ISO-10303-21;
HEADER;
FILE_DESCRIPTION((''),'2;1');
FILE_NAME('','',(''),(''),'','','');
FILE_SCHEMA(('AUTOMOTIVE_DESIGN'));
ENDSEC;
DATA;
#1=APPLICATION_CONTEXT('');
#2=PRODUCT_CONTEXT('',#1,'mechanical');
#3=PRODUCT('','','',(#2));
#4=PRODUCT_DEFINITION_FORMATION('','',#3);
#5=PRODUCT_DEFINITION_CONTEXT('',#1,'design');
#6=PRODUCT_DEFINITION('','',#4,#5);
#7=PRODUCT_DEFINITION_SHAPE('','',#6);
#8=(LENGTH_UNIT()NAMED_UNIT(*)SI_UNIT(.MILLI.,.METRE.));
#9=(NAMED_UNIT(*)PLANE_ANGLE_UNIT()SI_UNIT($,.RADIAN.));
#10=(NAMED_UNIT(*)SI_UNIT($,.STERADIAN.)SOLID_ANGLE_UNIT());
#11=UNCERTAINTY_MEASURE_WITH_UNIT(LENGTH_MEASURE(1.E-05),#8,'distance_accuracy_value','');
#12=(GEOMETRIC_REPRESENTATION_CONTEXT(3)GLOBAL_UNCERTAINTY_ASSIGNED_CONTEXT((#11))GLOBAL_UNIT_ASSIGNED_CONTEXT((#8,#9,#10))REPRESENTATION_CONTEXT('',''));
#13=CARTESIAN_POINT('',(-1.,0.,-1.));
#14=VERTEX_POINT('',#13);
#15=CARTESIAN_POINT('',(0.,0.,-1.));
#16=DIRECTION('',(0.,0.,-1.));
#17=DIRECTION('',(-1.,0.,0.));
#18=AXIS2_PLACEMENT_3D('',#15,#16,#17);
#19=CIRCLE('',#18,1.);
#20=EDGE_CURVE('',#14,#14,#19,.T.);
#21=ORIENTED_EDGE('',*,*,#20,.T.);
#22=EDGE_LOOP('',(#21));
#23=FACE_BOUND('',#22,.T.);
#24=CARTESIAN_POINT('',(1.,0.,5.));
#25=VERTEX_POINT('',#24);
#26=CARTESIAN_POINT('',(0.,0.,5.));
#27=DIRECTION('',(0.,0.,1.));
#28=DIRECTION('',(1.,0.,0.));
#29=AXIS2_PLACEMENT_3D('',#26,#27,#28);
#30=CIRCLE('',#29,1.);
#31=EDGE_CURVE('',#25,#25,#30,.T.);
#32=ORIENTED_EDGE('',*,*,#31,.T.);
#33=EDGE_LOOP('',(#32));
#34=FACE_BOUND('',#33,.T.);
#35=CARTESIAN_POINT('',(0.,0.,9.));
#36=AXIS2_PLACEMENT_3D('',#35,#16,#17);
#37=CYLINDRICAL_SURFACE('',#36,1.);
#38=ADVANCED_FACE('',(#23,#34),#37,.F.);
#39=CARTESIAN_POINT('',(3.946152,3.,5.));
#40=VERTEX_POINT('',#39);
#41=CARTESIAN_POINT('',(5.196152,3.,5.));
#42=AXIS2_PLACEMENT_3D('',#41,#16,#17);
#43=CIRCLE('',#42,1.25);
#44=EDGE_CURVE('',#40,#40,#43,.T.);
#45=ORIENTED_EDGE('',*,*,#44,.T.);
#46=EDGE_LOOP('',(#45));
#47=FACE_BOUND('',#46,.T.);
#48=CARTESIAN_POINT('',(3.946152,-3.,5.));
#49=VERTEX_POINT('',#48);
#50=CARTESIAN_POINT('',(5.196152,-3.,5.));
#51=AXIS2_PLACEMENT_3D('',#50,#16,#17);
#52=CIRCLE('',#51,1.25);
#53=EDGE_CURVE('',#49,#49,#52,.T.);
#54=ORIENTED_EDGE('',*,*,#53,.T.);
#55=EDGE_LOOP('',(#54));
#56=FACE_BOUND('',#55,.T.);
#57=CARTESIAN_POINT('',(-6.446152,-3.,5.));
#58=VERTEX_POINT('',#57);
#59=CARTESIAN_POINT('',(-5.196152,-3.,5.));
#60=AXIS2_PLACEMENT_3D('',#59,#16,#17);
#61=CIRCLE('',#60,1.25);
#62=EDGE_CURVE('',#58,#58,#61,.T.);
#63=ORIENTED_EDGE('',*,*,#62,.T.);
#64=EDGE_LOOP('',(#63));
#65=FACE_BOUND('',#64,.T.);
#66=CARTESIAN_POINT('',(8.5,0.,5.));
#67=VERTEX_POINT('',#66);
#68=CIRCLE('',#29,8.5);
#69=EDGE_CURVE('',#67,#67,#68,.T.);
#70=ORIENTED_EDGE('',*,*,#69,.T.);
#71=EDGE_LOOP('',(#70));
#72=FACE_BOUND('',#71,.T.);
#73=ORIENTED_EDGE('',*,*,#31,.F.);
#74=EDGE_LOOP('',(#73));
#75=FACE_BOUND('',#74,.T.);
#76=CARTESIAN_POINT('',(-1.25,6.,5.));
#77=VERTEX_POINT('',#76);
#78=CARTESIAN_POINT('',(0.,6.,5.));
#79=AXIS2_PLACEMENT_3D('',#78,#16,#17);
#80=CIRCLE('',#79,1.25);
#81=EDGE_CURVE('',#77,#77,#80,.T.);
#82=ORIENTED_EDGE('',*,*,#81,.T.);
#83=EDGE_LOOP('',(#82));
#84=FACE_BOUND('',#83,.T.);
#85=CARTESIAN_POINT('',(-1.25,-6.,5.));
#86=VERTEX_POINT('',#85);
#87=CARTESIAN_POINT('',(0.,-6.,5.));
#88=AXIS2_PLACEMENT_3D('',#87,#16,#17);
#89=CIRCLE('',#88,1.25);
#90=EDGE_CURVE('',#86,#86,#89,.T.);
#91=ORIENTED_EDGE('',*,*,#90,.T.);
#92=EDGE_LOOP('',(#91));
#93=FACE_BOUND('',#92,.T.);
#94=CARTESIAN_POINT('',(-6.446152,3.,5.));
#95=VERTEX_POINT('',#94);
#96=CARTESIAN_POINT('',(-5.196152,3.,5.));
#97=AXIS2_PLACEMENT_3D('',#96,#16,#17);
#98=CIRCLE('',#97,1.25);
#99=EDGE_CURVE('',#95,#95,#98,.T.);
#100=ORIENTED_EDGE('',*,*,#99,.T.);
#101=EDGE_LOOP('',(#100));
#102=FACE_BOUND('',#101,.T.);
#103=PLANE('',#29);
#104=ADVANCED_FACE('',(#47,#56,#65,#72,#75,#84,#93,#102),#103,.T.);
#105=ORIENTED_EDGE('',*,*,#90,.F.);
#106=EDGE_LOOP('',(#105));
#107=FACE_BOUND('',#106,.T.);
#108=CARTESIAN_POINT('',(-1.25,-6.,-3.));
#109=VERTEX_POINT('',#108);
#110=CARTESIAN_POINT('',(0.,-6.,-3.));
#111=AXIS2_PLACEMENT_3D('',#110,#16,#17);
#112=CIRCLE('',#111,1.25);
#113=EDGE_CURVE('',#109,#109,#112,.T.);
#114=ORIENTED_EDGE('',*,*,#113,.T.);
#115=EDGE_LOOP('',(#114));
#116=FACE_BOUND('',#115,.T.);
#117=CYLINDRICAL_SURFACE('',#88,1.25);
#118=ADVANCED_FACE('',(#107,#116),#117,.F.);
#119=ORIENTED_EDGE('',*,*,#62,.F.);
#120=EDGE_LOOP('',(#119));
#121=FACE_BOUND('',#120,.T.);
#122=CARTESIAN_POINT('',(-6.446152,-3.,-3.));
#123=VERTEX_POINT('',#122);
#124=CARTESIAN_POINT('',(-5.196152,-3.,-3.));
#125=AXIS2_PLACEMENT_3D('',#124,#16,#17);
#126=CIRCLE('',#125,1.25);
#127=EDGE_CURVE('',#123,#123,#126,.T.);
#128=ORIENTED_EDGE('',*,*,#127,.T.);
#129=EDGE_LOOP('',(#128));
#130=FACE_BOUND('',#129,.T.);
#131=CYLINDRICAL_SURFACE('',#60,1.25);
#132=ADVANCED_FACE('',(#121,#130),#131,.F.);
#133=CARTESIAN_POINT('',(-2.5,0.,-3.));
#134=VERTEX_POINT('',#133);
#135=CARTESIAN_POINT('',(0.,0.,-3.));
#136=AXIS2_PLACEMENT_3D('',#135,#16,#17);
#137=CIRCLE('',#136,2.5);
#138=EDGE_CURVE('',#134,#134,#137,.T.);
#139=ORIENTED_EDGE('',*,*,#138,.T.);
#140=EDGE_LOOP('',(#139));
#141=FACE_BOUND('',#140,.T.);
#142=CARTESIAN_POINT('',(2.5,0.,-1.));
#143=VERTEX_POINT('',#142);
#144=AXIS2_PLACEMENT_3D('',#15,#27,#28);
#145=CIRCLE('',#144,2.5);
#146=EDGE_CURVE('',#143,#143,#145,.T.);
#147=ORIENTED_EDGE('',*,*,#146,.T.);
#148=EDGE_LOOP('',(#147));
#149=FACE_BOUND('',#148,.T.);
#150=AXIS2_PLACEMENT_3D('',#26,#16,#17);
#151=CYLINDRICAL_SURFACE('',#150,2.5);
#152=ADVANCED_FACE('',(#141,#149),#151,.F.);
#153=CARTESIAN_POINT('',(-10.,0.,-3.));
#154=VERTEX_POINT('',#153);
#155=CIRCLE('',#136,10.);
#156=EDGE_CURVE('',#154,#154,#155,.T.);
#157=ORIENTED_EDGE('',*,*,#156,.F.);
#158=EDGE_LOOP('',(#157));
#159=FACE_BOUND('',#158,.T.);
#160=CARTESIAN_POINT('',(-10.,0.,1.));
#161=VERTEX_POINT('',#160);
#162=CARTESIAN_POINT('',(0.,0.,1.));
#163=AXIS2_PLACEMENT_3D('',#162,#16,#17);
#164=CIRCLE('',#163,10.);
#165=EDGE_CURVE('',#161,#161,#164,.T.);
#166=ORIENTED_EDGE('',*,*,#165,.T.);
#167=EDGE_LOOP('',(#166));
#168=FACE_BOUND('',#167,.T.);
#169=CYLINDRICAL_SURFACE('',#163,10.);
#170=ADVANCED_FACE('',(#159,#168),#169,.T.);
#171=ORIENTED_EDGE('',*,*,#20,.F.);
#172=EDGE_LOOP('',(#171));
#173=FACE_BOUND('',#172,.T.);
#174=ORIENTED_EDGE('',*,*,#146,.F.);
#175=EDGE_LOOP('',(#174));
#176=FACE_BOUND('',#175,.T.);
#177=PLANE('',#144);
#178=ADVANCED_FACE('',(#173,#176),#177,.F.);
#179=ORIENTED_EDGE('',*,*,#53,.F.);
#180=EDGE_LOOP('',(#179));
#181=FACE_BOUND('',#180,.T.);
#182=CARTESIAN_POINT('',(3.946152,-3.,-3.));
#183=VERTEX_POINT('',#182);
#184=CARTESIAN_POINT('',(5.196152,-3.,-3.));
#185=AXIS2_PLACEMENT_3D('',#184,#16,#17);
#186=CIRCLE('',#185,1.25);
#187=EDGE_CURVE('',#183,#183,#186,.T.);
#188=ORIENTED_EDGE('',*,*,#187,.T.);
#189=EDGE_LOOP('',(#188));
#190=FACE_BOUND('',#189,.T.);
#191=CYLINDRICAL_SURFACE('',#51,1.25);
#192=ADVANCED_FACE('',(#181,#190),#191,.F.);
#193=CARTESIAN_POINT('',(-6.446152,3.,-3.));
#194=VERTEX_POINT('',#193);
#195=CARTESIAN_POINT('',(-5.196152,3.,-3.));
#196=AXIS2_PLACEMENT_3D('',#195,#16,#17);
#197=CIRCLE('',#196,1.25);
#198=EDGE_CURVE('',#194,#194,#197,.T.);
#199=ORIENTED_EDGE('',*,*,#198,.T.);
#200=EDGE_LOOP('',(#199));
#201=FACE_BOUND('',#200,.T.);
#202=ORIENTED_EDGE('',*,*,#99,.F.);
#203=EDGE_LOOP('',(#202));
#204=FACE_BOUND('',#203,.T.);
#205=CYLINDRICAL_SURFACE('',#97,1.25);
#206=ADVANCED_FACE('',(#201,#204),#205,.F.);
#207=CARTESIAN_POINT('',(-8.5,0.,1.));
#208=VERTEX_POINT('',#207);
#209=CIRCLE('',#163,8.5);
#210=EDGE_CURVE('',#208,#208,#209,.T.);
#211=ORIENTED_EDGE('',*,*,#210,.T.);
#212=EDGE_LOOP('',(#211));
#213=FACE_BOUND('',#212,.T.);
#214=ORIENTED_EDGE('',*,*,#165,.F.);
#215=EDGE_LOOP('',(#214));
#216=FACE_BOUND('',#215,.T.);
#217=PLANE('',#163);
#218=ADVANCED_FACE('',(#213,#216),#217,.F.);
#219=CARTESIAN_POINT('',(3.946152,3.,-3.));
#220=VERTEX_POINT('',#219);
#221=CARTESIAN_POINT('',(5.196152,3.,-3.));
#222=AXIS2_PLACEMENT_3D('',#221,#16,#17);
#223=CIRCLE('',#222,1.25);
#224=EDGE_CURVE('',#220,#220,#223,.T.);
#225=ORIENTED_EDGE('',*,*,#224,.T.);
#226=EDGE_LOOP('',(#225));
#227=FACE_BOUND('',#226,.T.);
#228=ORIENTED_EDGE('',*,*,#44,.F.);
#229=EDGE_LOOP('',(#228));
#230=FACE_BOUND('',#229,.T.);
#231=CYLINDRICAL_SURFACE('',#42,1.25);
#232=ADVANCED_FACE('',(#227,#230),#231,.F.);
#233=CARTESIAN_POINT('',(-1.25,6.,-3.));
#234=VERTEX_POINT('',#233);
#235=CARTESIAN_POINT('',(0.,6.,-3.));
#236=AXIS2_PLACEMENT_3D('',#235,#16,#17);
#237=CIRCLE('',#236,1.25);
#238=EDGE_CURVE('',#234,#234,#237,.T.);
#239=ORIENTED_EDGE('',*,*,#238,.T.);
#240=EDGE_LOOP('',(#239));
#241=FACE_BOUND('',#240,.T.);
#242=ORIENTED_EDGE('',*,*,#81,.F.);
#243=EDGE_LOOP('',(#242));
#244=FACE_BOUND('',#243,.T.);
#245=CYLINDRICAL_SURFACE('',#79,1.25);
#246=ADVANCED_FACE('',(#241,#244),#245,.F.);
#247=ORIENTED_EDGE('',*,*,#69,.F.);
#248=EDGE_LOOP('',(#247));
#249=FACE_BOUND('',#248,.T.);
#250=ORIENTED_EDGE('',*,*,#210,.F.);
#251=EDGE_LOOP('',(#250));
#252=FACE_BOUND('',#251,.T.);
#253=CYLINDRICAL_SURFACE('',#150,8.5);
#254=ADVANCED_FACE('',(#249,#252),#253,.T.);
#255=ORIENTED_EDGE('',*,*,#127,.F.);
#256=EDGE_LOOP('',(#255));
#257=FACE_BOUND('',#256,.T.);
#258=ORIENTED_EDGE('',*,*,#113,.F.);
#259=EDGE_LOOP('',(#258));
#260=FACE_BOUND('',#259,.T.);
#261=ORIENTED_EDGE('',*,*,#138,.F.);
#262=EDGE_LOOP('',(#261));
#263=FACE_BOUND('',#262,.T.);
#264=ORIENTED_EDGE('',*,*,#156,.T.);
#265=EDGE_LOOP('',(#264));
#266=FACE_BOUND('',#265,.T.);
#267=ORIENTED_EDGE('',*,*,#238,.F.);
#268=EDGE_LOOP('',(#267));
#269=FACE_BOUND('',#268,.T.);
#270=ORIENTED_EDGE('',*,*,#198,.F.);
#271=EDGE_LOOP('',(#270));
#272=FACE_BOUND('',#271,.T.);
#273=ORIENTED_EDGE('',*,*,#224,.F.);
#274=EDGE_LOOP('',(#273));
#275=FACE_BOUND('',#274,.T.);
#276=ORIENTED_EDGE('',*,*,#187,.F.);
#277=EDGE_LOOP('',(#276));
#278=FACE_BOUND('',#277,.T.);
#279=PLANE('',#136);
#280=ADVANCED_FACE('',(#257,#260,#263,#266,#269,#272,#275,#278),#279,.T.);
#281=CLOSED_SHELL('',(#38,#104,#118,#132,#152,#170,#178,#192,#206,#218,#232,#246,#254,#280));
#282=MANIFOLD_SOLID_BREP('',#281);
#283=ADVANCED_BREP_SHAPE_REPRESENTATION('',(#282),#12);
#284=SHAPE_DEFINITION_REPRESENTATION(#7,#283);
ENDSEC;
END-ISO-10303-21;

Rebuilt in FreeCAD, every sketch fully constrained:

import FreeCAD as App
import Part
import Sketcher
from FreeCAD import Vector
Q = App.Units.Quantity

doc = App.newDocument("Part")
params = doc.addObject("Spreadsheet::Sheet", "Params")
for row, (alias, value) in enumerate([
    ("sketch1_diameter", "17 mm"),
    ("sketch1_diameter2", "5 mm"),
    ("pad1_length", "5 mm"),
    ("sketch2_diameter", "2.5 mm"),
    ("pocket1_length", "5 mm"),
    ("sketch3_diameter", "20 mm"),
    ("sketch3_diameter2", "17 mm"),
    ("pad2_length", "1 mm"),
    ("sketch4_diameter", "20 mm"),
    ("sketch4_diameter2", "5 mm"),
    ("sketch4_diameter3", "2.5 mm"),
    ("pad3_length", "3 mm"),
    ("sketch5_diameter", "5 mm"),
    ("pad4_length", "6 mm"),
    ("sketch6_diameter", "2 mm"),
    ("pocket2_length", "10 mm"),
], start=1):
    params.set(f"A{row}", alias)
    params.set(f"B{row}", "=" + value)
    params.setAlias(f"B{row}", alias)

body = doc.addObject("PartDesign::Body", "Body")

# Sketch on XY plane
sketch1 = doc.addObject("Sketcher::SketchObject", "Sketch")
body.addObject(sketch1)
sketch1.AttachmentSupport = (doc.XY_Plane, [""])
sketch1.MapMode = "FlatFace"
sketch1.addGeometry([
    Part.Circle(Vector(0, 0, 0), Vector(0, 0, 1), 8.5),
    Part.Circle(Vector(0, 0, 0), Vector(0, 0, 1), 2.5),
], False)
sketch1.addConstraint([
    Sketcher.Constraint("Coincident", 0, 3, -1, 1),
    Sketcher.Constraint("Coincident", 1, 3, -1, 1),
    Sketcher.Constraint("Diameter", 0, Q("17 mm")),
    Sketcher.Constraint("Diameter", 1, Q("5 mm")),
])
sketch1.setExpression("Constraints[2]", "Params.sketch1_diameter")
sketch1.setExpression("Constraints[3]", "Params.sketch1_diameter2")
pad1 = doc.addObject("PartDesign::Pad", "Pad")
body.addObject(pad1)
pad1.Profile = sketch1
pad1.setExpression("Length", "Params.pad1_length")

# Sketch on XY plane
sketch2 = doc.addObject("Sketcher::SketchObject", "Sketch001")
body.addObject(sketch2)
sketch2.AttachmentSupport = (doc.XY_Plane, [""])
sketch2.MapMode = "FlatFace"
sketch2.addGeometry([
    Part.Circle(Vector(0, 6, 0), Vector(0, 0, 1), 1.2),  # 0
    Part.Circle(Vector(-5.2, 3, 0), Vector(0, 0, 1), 1.2),  # 1
    Part.Circle(Vector(-5.2, -3, 0), Vector(0, 0, 1), 1.2),  # 2
    Part.Circle(Vector(0, -6, 0), Vector(0, 0, 1), 1.2),  # 3
    Part.Circle(Vector(5.2, -3, 0), Vector(0, 0, 1), 1.2),  # 4
    Part.Circle(Vector(5.2, 3, 0), Vector(0, 0, 1), 1.2),  # 5
], False)
sketch2.addConstraint([
    Sketcher.Constraint("Equal", 0, 1),
    Sketcher.Constraint("Equal", 1, 2),
    Sketcher.Constraint("Equal", 2, 3),
    Sketcher.Constraint("Equal", 3, 4),
    Sketcher.Constraint("Equal", 4, 5),
    Sketcher.Constraint("Symmetric", 0, 3, 3, 3, -1, 1),
    Sketcher.Constraint("Symmetric", 1, 3, 4, 3, -1, 1),
    Sketcher.Constraint("Symmetric", 2, 3, 5, 3, -1, 1),
    Sketcher.Constraint("Symmetric", 2, 3, 4, 3, -2),
    Sketcher.Constraint("PointOnObject", 0, 3, -2),
    Sketcher.Constraint("Diameter", 0, Q("2.5 mm")),
    Sketcher.Constraint("DistanceY", -1, 1, 0, 3, Q("6 mm")),
    Sketcher.Constraint("DistanceY", -1, 1, 1, 3, Q("3 mm")),
    Sketcher.Constraint("DistanceX", 1, 3, -1, 1, Q("5.196152 mm")),
])
sketch2.setExpression("Constraints[10]", "Params.sketch2_diameter")
pocket1 = doc.addObject("PartDesign::Pocket", "Pocket")
body.addObject(pocket1)
pocket1.Profile = sketch2
pocket1.setExpression("Length", "Params.pocket1_length")
pocket1.Reversed = True

# Sketch on XY plane
sketch3 = doc.addObject("Sketcher::SketchObject", "Sketch002")
body.addObject(sketch3)
sketch3.AttachmentSupport = (doc.XY_Plane, [""])
sketch3.MapMode = "FlatFace"
sketch3.addGeometry([
    Part.Circle(Vector(0, 0, 0), Vector(0, 0, 1), 10),
    Part.Circle(Vector(0, 0, 0), Vector(0, 0, 1), 8),
], False)
sketch3.addConstraint([
    Sketcher.Constraint("Coincident", 0, 3, -1, 1),
    Sketcher.Constraint("Coincident", 1, 3, -1, 1),
    Sketcher.Constraint("Diameter", 0, Q("20 mm")),
    Sketcher.Constraint("Diameter", 1, Q("17 mm")),
])
sketch3.setExpression("Constraints[2]", "Params.sketch3_diameter")
sketch3.setExpression("Constraints[3]", "Params.sketch3_diameter2")
pad2 = doc.addObject("PartDesign::Pad", "Pad001")
body.addObject(pad2)
pad2.Profile = sketch3
pad2.setExpression("Length", "Params.pad2_length")

# Sketch on XY plane
sketch4 = doc.addObject("Sketcher::SketchObject", "Sketch003")
body.addObject(sketch4)
sketch4.AttachmentSupport = (doc.XY_Plane, [""])
sketch4.MapMode = "FlatFace"
sketch4.AttachmentOffset = App.Placement(Vector(0, 0, -3), App.Rotation())
sketch4.addGeometry([
    Part.Circle(Vector(0, 0, 0), Vector(0, 0, 1), 10),  # 0
    Part.Circle(Vector(0, -6, 0), Vector(0, 0, 1), 1.2),  # 1
    Part.Circle(Vector(5.2, -3, 0), Vector(0, 0, 1), 1.2),  # 2
    Part.Circle(Vector(-5.2, -3, 0), Vector(0, 0, 1), 1.2),  # 3
    Part.Circle(Vector(5.2, 3, 0), Vector(0, 0, 1), 1.2),  # 4
    Part.Circle(Vector(0, 0, 0), Vector(0, 0, 1), 2.5),  # 5
    Part.Circle(Vector(0, 6, 0), Vector(0, 0, 1), 1.2),  # 6
    Part.Circle(Vector(-5.2, 3, 0), Vector(0, 0, 1), 1.2),  # 7
], False)
sketch4.addConstraint([
    Sketcher.Constraint("Coincident", 0, 3, -1, 1),
    Sketcher.Constraint("Coincident", 5, 3, -1, 1),
    Sketcher.Constraint("Equal", 1, 2),
    Sketcher.Constraint("Equal", 2, 3),
    Sketcher.Constraint("Equal", 3, 4),
    Sketcher.Constraint("Equal", 4, 6),
    Sketcher.Constraint("Equal", 6, 7),
    Sketcher.Constraint("Symmetric", 3, 3, 4, 3, -1, 1),
    Sketcher.Constraint("Symmetric", 1, 3, 6, 3, -1, 1),
    Sketcher.Constraint("Symmetric", 2, 3, 7, 3, -1, 1),
    Sketcher.Constraint("Symmetric", 2, 3, 3, 3, -2),
    Sketcher.Constraint("PointOnObject", 1, 3, -2),
    Sketcher.Constraint("Diameter", 0, Q("20 mm")),
    Sketcher.Constraint("Diameter", 5, Q("5 mm")),
    Sketcher.Constraint("Diameter", 1, Q("2.5 mm")),
    Sketcher.Constraint("DistanceY", 1, 3, -1, 1, Q("6 mm")),
    Sketcher.Constraint("DistanceY", 2, 3, -1, 1, Q("3 mm")),
    Sketcher.Constraint("DistanceX", -1, 1, 2, 3, Q("5.196152 mm")),
])
sketch4.setExpression("Constraints[12]", "Params.sketch4_diameter")
sketch4.setExpression("Constraints[13]", "Params.sketch4_diameter2")
sketch4.setExpression("Constraints[14]", "Params.sketch4_diameter3")
pad3 = doc.addObject("PartDesign::Pad", "Pad002")
body.addObject(pad3)
pad3.Profile = sketch4
pad3.setExpression("Length", "Params.pad3_length")

# Sketch on XY plane
sketch5 = doc.addObject("Sketcher::SketchObject", "Sketch004")
body.addObject(sketch5)
sketch5.AttachmentSupport = (doc.XY_Plane, [""])
sketch5.MapMode = "FlatFace"
sketch5.AttachmentOffset = App.Placement(Vector(0, 0, -1), App.Rotation())
sketch5.addGeometry(Part.Circle(Vector(0, 0, 0), Vector(0, 0, 1), 2.5), False)
sketch5.addConstraint([
    Sketcher.Constraint("Coincident", 0, 3, -1, 1),
    Sketcher.Constraint("Diameter", 0, Q("5 mm")),
])
sketch5.setExpression("Constraints[1]", "Params.sketch5_diameter")
pad4 = doc.addObject("PartDesign::Pad", "Pad003")
body.addObject(pad4)
pad4.Profile = sketch5
pad4.setExpression("Length", "Params.pad4_length")

# Sketch on XY plane
sketch6 = doc.addObject("Sketcher::SketchObject", "Sketch005")
body.addObject(sketch6)
sketch6.AttachmentSupport = (doc.XY_Plane, [""])
sketch6.MapMode = "FlatFace"
sketch6.AttachmentOffset = App.Placement(Vector(0, 0, -1), App.Rotation())
sketch6.addGeometry(Part.Circle(Vector(0, 0, 0), Vector(0, 0, 1), 1), False)
sketch6.addConstraint([
    Sketcher.Constraint("Coincident", 0, 3, -1, 1),
    Sketcher.Constraint("Diameter", 0, Q("2 mm")),
])
sketch6.setExpression("Constraints[1]", "Params.sketch6_diameter")
pocket2 = doc.addObject("PartDesign::Pocket", "Pocket001")
body.addObject(pocket2)
pocket2.Profile = sketch6
pocket2.setExpression("Length", "Params.pocket2_length")
pocket2.Reversed = True

doc.recompute()
